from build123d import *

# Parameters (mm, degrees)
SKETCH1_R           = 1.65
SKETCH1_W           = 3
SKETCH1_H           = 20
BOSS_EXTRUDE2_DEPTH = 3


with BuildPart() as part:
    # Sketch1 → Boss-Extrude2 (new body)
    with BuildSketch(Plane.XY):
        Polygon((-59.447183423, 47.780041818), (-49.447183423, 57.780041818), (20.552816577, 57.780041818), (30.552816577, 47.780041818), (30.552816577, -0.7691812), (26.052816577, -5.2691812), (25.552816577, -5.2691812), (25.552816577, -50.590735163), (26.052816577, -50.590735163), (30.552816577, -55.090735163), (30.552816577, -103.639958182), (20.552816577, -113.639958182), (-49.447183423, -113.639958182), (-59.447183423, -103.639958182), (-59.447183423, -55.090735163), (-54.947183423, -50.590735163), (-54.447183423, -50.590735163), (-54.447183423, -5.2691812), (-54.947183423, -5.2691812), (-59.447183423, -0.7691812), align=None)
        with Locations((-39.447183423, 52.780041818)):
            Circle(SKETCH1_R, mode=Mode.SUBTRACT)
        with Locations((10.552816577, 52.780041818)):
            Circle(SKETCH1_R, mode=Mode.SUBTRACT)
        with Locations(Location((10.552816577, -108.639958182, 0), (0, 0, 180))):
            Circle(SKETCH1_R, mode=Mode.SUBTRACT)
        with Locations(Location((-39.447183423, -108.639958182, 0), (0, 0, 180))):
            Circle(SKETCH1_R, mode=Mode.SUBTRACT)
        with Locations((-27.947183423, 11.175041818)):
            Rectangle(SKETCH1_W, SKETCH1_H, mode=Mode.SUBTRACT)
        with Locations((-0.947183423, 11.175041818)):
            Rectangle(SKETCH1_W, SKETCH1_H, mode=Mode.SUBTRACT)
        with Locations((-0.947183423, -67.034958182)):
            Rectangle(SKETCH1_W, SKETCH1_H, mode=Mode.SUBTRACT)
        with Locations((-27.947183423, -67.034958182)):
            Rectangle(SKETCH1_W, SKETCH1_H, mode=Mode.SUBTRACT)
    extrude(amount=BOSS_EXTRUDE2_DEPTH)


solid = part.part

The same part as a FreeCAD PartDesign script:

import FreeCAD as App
import Part
import Sketcher
from FreeCAD import Vector


def add_polygon(sketch, points):
    """Adds a closed chain of lines whose ends are joined by coincident constraints."""
    first, n = sketch.GeometryCount, len(points)
    for a, b in zip(points, points[1:] + points[:1]):
        sketch.addGeometry(Part.LineSegment(App.Vector(*a, 0), App.Vector(*b, 0)), False)
    for i in range(n):
        sketch.addConstraint(Sketcher.Constraint("Coincident", first + i, 2, first + (i + 1) % n, 1))

doc = App.newDocument("Part")
body = doc.addObject("PartDesign::Body", "Body")

sketch1 = body.newObject("Sketcher::SketchObject", "Sketch")
sketch1.AttachmentSupport = (doc.getObject("XY_Plane"), [""])
sketch1.MapMode = "FlatFace"
add_polygon(sketch1, [(-49.4, 57.8), (-59.4, 47.8), (-59.4, -0.8), (-54.9, -5.3), (-54.4, -5.3), (-54.4, -50.6), (-54.9, -50.6), (-59.4, -55.1), (-59.4, -103.6), (-49.4, -113.6), (20.6, -113.6), (30.6, -103.6), (30.6, -55.1), (26.1, -50.6), (25.6, -50.6), (25.6, -5.3), (26.1, -5.3), (30.6, -0.8), (30.6, 47.8), (20.6, 57.8)])
sketch1.addGeometry(Part.Circle(Vector(10.6, -108.6, 0), Vector(0, 0, 1), 1.6), False)
add_polygon(sketch1, [(-2.4, -77), (-2.4, -57), (0.6, -57), (0.6, -77)])
sketch1.addGeometry(Part.Circle(Vector(-39.4, -108.6, 0), Vector(0, 0, 1), 1.6), False)
add_polygon(sketch1, [(-29.4, -77), (-29.4, -57), (-26.4, -57), (-26.4, -77)])
add_polygon(sketch1, [(-2.4, 1.2), (-2.4, 21.2), (0.6, 21.2), (0.6, 1.2)])
sketch1.addGeometry(Part.Circle(Vector(10.6, 52.8, 0), Vector(0, 0, 1), 1.6), False)
add_polygon(sketch1, [(-29.4, 1.2), (-29.4, 21.2), (-26.4, 21.2), (-26.4, 1.2)])
sketch1.addGeometry(Part.Circle(Vector(-39.4, 52.8, 0), Vector(0, 0, 1), 1.6), False)
sketch1.addConstraint([
    Sketcher.Constraint("Vertical", 1),
    Sketcher.Constraint("Horizontal", 3),
    Sketcher.Constraint("Vertical", 4),
    Sketcher.Constraint("Horizontal", 5),
    Sketcher.Constraint("Vertical", 7),
    Sketcher.Constraint("Horizontal", 9),
    Sketcher.Constraint("Vertical", 11),
    Sketcher.Constraint("Horizontal", 13),
    Sketcher.Constraint("Vertical", 14),
    Sketcher.Constraint("Horizontal", 15),
    Sketcher.Constraint("Vertical", 17),
    Sketcher.Constraint("Horizontal", 19),
    Sketcher.Constraint("Vertical", 21),
    Sketcher.Constraint("Horizontal", 22),
    Sketcher.Constraint("Vertical", 23),
    Sketcher.Constraint("Horizontal", 24),
    Sketcher.Constraint("Vertical", 26),
    Sketcher.Constraint("Horizontal", 27),
    Sketcher.Constraint("Vertical", 28),
    Sketcher.Constraint("Horizontal", 29),
    Sketcher.Constraint("Vertical", 30),
    Sketcher.Constraint("Horizontal", 31),
    Sketcher.Constraint("Vertical", 32),
    Sketcher.Constraint("Horizontal", 33),
    Sketcher.Constraint("Vertical", 35),
    Sketcher.Constraint("Horizontal", 36),
    Sketcher.Constraint("Vertical", 37),
    Sketcher.Constraint("Horizontal", 38),
    Sketcher.Constraint("Equal", 20, 25),
    Sketcher.Constraint("Equal", 25, 34),
    Sketcher.Constraint("Equal", 34, 39),
    Sketcher.Constraint("Perpendicular", 0, 2),
    Sketcher.Constraint("Perpendicular", 2, 6),
    Sketcher.Constraint("Perpendicular", 6, 8),
    Sketcher.Constraint("Perpendicular", 8, 10),
    Sketcher.Constraint("Perpendicular", 10, 12),
    Sketcher.Constraint("Perpendicular", 12, 16),
    Sketcher.Constraint("Perpendicular", 16, 18),
    Sketcher.Constraint("Horizontal", 20, 3, 25, 3),
    Sketcher.Constraint("Horizontal", 34, 3, 39, 3),
    Sketcher.Constraint("Horizontal", 7, 2, 10, 2),
    Sketcher.Constraint("Horizontal", 6, 2, 11, 2),
    Sketcher.Constraint("Horizontal", 5, 2, 12, 2),
    Sketcher.Constraint("Horizontal", 3, 2, 14, 2),
    Sketcher.Constraint("Horizontal", 1, 2, 16, 2),
    Sketcher.Constraint("Horizontal", 0, 2, 17, 2),
    Sketcher.Constraint("Horizontal", 22, 2, 26, 2),
    Sketcher.Constraint("Horizontal", 24, 2, 28, 2),
    Sketcher.Constraint("Horizontal", 31, 2, 35, 2),
    Sketcher.Constraint("Horizontal", 33, 2, 37, 2),
    Sketcher.Constraint("Vertical", 20, 3, 34, 3),
    Sketcher.Constraint("Vertical", 25, 3, 39, 3),
    Sketcher.Constraint("Vertical", 2, 2, 5, 2),
    Sketcher.Constraint("Vertical", 1, 2, 6, 2),
    Sketcher.Constraint("Vertical", 12, 2, 15, 2),
    Sketcher.Constraint("Vertical", 11, 2, 16, 2),
    Sketcher.Constraint("Vertical", 9, 2, 18, 2),
    Sketcher.Constraint("Vertical", 24, 2, 30, 2),
    Sketcher.Constraint("Vertical", 23, 2, 31, 2),
    Sketcher.Constraint("Vertical", 29, 2, 35, 2),
    Sketcher.Constraint("Vertical", 28, 2, 36, 2),
    Sketcher.Constraint("Equal", 5, 13),
    Sketcher.Constraint("Equal", 24, 27),
    Sketcher.Constraint("Equal", 1, 7),
    Sketcher.Constraint("Equal", 28, 30),
    Sketcher.Constraint("Diameter", 20, 3.3),
    Sketcher.Constraint("DistanceX", 9, 1, 9, 2, 70.0),
    Sketcher.Constraint("DistanceX", 22, 1, 22, 2, 3.0),
    Sketcher.Constraint("DistanceY", 21, 1, 21, 2, 20.0),
    Sketcher.Constraint("DistanceX", 3, 1, 3, 2, 0.5),
    Sketcher.Constraint("DistanceX", 25, 3, 20, 3, 50.0),
    Sketcher.Constraint("DistanceX", 0, 2, 39, 3, 20.0),
    Sketcher.Constraint("DistanceY", 0, 2, 39, 3, 5.0),
    Sketcher.Constraint("DistanceX", 1, 2, 3, 2, 5.0),
    Sketcher.Constraint("DistanceY", 25, 3, 7, 2, 5.0),
    Sketcher.Constraint("DistanceX", 8, 2, 25, 3, 10.0),
    Sketcher.Constraint("DistanceX", 21, 2, 13, 2, 28.0),
    Sketcher.Constraint("DistanceX", 4, 2, 26, 2, 25.0),
    Sketcher.Constraint("DistanceY", 20, 3, 34, 3, 161.42),
    Sketcher.Constraint("DistanceY", 20, 3, 22, 2, 51.605),
    Sketcher.Constraint("DistanceY", 30, 2, 34, 3, 31.605),
    Sketcher.Constraint("DistanceY", 1, 2, 1, 1, 48.549223),
    Sketcher.Constraint("DistanceY", 20, 3, -1, 1, 108.639958),
    Sketcher.Constraint("DistanceX", -1, 1, 20, 3, 10.552817),
])
pad1 = body.newObject("PartDesign::Pad", "Pad")
pad1.Profile = sketch1
pad1.Length = 3

doc.recompute()
